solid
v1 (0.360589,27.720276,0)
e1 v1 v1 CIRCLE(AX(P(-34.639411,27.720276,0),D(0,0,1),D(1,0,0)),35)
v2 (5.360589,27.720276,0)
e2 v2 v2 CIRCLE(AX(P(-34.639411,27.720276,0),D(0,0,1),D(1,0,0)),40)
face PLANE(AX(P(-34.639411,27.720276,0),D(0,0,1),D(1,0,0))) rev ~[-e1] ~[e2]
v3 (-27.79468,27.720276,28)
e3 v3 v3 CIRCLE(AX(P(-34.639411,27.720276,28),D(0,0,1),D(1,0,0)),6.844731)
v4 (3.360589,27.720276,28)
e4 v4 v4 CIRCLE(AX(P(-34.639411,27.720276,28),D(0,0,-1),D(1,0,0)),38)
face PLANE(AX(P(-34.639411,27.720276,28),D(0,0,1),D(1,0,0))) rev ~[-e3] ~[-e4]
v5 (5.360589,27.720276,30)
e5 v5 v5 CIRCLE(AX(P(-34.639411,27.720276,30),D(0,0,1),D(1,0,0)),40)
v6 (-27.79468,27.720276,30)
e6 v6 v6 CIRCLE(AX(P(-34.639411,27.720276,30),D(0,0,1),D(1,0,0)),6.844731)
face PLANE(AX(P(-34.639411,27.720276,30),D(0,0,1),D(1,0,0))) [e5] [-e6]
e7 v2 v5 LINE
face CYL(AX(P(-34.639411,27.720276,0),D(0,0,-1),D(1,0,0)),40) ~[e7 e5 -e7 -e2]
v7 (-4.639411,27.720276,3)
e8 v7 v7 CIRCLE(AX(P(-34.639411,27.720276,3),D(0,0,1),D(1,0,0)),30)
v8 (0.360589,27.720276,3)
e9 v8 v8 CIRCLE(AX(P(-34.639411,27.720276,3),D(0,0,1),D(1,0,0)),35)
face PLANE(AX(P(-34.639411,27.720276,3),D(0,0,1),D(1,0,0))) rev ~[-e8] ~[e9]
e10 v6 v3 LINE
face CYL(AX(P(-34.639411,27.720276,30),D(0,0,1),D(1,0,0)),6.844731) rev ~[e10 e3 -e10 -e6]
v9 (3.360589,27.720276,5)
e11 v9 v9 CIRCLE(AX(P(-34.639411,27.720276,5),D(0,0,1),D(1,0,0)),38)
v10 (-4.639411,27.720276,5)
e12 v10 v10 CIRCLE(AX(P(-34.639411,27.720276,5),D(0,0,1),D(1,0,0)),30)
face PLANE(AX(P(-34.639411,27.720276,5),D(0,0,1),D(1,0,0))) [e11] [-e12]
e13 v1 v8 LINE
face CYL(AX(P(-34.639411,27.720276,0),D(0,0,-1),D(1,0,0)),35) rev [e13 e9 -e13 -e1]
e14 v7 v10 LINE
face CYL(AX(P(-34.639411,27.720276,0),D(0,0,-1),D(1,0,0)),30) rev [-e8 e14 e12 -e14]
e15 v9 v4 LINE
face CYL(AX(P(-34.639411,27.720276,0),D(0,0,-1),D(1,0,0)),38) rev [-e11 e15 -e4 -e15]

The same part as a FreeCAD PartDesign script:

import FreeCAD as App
import Part
import Sketcher

V = App.Vector

doc = App.newDocument("Part")
params = doc.addObject("Spreadsheet::Sheet", "Params")
for row, (alias, value) in enumerate([
    ("sketch1_diameter", "80 mm"),
    ("sketch1_diameter2", "76 mm"),
    ("pad1_length", "30 mm"),
    ("sketch2_diameter", "76 mm"),
    ("sketch2_diameter2", "60 mm"),
    ("pad2_length", "5 mm"),
    ("sketch3_diameter", "70 mm"),
    ("sketch3_diameter2", "60 mm"),
    ("pocket1_length", "3 mm"),
    ("pad3_length", "2 mm"),
], start=1):
    params.set(f"A{row}", alias)
    params.set(f"B{row}", "=" + value)
    params.setAlias(f"B{row}", alias)

body = doc.addObject("PartDesign::Body", "Body")

sketch1 = body.newObject("Sketcher::SketchObject", "Sketch")
sketch1.AttachmentSupport = (doc.getObject("XY_Plane"), [""])
sketch1.MapMode = "FlatFace"
sketch1.addGeometry([
    Part.Circle(V(-34.639411, 27.720276, 0), V(0, 0, 1), 40),
    Part.Circle(V(-34.639411, 27.720276, 0), V(0, 0, 1), 38),
], False)
sketch1.addConstraint([
    Sketcher.Constraint("Coincident", 1, 3, 0, 3),
    Sketcher.Constraint("Diameter", 0, 80.0),
    Sketcher.Constraint("Diameter", 1, 76.0),
    Sketcher.Constraint("DistanceX", 0, 3, -1, 1, 34.639411),
    Sketcher.Constraint("DistanceY", -1, 1, 0, 3, 27.720276),
])
sketch1.setExpression("Constraints[1]", "Params.sketch1_diameter")
sketch1.setExpression("Constraints[2]", "Params.sketch1_diameter2")
pad1 = body.newObject("PartDesign::Pad", "Pad")
pad1.Profile = sketch1
pad1.setExpression("Length", "Params.pad1_length")

sketch2 = body.newObject("Sketcher::SketchObject", "Sketch001")
sketch2.AttachmentSupport = (doc.getObject("XY_Plane"), [""])
sketch2.MapMode = "FlatFace"
sketch2.addGeometry([
    Part.Circle(V(-34.639411, 27.720276, 0), V(0, 0, 1), 38),
    Part.Circle(V(-34.639411, 27.720276, 0), V(0, 0, 1), 30),
], False)
sketch2.addConstraint([
    Sketcher.Constraint("Coincident", 1, 3, 0, 3),
    Sketcher.Constraint("Diameter", 0, 76.0),
    Sketcher.Constraint("Diameter", 1, 60.0),
    Sketcher.Constraint("DistanceX", 0, 3, -1, 1, 34.639411),
    Sketcher.Constraint("DistanceY", -1, 1, 0, 3, 27.720276),
])
sketch2.setExpression("Constraints[1]", "Params.sketch2_diameter")
sketch2.setExpression("Constraints[2]", "Params.sketch2_diameter2")
pad2 = body.newObject("PartDesign::Pad", "Pad001")
pad2.Profile = sketch2
pad2.setExpression("Length", "Params.pad2_length")

sketch3 = body.newObject("Sketcher::SketchObject", "Sketch002")
sketch3.AttachmentSupport = (doc.getObject("XY_Plane"), [""])
sketch3.MapMode = "FlatFace"
sketch3.addGeometry([
    Part.Circle(V(-34.639411, 27.720276, 0), V(0, 0, 1), 35),
    Part.Circle(V(-34.639411, 27.720276, 0), V(0, 0, 1), 30),
], False)
sketch3.addConstraint([
    Sketcher.Constraint("Coincident", 1, 3, 0, 3),
    Sketcher.Constraint("Diameter", 0, 70.0),
    Sketcher.Constraint("Diameter", 1, 60.0),
    Sketcher.Constraint("DistanceX", 0, 3, -1, 1, 34.639411),
    Sketcher.Constraint("DistanceY", -1, 1, 0, 3, 27.720276),
])
sketch3.setExpression("Constraints[1]", "Params.sketch3_diameter")
sketch3.setExpression("Constraints[2]", "Params.sketch3_diameter2")
pocket1 = body.newObject("PartDesign::Pocket", "Pocket")
pocket1.Profile = sketch3
pocket1.setExpression("Length", "Params.pocket1_length")
pocket1.Reversed = True

sketch4 = body.newObject("Sketcher::SketchObject", "Sketch003")
sketch4.AttachmentSupport = (doc.getObject("XY_Plane"), [""])
sketch4.MapMode = "FlatFace"
sketch4.AttachmentOffset = App.Placement(V(0, 0, 30), App.Rotation())
sketch4.addGeometry([
    Part.Circle(V(-34.639411, 27.720276, 0), V(0, 0, 1), 39.94757),
    Part.Circle(V(-34.639411, 27.720276, 0), V(0, 0, 1), 6.844731),
], False)
sketch4.addConstraint([
    Sketcher.Constraint("Coincident", 1, 3, 0, 3),
    Sketcher.Constraint("Diameter", 0, 79.89514),
    Sketcher.Constraint("Diameter", 1, 13.689462),
    Sketcher.Constraint("DistanceX", 0, 3, -1, 1, 34.639411),
    Sketcher.Constraint("DistanceY", -1, 1, 0, 3, 27.720276),
])
pad3 = body.newObject("PartDesign::Pad", "Pad002")
pad3.Profile = sketch4
pad3.setExpression("Length", "Params.pad3_length")
pad3.Reversed = True

doc.recompute()
